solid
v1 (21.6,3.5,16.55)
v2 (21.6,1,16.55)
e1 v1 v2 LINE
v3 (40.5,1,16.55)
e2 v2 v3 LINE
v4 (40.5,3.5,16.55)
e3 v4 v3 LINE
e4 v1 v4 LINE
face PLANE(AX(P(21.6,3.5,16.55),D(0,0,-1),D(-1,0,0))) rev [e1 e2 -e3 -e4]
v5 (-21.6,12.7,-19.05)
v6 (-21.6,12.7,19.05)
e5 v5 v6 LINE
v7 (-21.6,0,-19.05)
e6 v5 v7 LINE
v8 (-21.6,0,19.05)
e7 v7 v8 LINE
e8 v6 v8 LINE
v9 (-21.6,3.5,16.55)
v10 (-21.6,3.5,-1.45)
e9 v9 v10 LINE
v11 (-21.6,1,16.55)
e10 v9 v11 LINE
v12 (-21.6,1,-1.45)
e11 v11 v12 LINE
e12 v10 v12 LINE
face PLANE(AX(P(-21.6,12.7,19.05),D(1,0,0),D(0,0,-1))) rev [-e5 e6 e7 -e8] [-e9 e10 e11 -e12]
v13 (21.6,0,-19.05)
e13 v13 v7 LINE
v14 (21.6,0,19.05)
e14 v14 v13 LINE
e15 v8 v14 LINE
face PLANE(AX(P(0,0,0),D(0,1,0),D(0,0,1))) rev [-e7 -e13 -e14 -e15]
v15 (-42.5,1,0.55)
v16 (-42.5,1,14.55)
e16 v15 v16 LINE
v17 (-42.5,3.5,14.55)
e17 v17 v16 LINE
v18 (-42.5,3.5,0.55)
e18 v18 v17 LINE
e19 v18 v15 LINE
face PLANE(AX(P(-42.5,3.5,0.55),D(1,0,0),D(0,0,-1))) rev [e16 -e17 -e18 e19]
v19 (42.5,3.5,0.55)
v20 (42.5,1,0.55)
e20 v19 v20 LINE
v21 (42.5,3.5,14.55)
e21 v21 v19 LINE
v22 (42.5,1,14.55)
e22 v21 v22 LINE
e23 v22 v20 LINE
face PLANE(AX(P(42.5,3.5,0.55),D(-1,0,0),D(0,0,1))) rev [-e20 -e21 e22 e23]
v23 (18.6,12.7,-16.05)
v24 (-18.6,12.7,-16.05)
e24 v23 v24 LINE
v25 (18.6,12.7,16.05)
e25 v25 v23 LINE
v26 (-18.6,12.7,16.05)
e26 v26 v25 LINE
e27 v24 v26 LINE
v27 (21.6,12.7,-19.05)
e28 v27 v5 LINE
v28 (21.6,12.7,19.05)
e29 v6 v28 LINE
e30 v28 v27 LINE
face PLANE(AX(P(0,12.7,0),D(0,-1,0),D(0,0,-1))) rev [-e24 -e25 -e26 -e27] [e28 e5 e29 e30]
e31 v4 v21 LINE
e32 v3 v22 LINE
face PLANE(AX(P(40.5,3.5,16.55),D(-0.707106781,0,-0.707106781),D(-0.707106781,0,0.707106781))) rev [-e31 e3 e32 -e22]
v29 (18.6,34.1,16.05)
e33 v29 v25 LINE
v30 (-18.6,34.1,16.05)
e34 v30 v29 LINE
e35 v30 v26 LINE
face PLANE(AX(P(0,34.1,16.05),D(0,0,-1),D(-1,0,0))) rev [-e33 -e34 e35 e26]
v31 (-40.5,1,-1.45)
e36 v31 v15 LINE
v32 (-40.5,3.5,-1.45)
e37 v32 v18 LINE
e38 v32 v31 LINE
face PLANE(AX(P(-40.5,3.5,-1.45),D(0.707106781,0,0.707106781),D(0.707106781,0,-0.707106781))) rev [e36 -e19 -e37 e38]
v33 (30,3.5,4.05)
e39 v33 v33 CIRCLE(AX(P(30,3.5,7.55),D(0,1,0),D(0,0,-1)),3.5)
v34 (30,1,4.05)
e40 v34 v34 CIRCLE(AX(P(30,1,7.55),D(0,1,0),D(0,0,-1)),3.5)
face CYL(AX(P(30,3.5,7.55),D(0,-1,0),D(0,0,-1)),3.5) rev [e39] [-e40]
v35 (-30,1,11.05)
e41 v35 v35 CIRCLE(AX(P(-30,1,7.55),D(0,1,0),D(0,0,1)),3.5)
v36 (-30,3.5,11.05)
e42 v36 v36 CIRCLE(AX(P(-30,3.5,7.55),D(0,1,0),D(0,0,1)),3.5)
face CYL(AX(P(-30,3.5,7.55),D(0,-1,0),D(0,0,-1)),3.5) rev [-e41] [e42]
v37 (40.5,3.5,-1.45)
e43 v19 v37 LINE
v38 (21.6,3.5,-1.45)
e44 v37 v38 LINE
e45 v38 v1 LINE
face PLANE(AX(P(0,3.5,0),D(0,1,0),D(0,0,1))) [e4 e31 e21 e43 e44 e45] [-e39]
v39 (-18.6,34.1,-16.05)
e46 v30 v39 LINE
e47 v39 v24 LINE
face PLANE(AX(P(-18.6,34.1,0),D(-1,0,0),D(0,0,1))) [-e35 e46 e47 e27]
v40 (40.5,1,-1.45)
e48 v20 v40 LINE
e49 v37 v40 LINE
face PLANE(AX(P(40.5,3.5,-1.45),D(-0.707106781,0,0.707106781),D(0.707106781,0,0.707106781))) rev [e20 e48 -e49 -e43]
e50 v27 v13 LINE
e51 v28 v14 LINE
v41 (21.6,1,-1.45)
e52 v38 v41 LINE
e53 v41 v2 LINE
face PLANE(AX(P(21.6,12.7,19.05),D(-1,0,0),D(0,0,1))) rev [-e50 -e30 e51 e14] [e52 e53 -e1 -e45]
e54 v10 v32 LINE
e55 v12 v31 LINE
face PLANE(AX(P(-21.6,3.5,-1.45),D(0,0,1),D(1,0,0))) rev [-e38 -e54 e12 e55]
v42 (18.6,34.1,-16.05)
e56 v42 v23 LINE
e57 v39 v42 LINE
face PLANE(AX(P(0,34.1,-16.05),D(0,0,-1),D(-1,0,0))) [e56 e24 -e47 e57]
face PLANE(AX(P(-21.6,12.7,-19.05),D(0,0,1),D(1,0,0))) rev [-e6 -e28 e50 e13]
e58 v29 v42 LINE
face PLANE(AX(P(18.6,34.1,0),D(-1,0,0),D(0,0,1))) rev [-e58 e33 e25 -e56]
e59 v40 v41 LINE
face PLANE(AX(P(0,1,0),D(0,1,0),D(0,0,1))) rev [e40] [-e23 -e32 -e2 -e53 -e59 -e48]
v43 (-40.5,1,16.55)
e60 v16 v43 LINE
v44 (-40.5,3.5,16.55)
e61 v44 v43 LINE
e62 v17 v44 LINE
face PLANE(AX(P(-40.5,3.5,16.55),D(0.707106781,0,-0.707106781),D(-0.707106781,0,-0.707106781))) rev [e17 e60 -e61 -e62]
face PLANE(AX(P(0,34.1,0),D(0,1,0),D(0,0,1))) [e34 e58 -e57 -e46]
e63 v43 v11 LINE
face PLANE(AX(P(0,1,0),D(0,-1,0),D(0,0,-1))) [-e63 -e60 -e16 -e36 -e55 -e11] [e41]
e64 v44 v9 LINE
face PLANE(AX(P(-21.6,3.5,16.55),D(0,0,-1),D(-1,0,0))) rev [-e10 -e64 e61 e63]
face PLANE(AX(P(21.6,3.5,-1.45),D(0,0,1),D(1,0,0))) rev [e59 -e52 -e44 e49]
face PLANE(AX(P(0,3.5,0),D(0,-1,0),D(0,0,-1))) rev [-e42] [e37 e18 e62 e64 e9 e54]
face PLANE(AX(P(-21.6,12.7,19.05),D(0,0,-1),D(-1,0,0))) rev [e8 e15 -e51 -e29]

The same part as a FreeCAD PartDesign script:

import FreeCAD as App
import Part
import Sketcher
from FreeCAD import Vector

doc = App.newDocument("Part")
body = doc.addObject("PartDesign::Body", "Body")

sketch1 = body.newObject("Sketcher::SketchObject", "Sketch")
sketch1.AttachmentSupport = (doc.getObject("XZ_Plane"), [""])
sketch1.MapMode = "FlatFace"
sketch1.addGeometry([
    Part.LineSegment(Vector(-19, -16, 0), Vector(-19, 16, 0)),
    Part.LineSegment(Vector(-19, 16, 0), Vector(19, 16, 0)),
    Part.LineSegment(Vector(19, 16, 0), Vector(19, -16, 0)),
    Part.LineSegment(Vector(19, -16, 0), Vector(-19, -16, 0)),
], False)
sketch1.addConstraint([
    Sketcher.Constraint("Coincident", 0, 2, 1, 1),
    Sketcher.Constraint("Coincident", 1, 2, 2, 1),
    Sketcher.Constraint("Coincident", 2, 2, 3, 1),
    Sketcher.Constraint("Coincident", 3, 2, 0, 1),
    Sketcher.Constraint("Vertical", 0),
    Sketcher.Constraint("Horizontal", 1),
    Sketcher.Constraint("Vertical", 2),
    Sketcher.Constraint("Horizontal", 3),
    Sketcher.Constraint("Symmetric", 0, 2, 2, 2, -1, 1),
    Sketcher.Constraint("DistanceX", 1, 1, 1, 2, 37.2),
    Sketcher.Constraint("DistanceY", 0, 1, 0, 2, 32.1),
])
pad1 = body.newObject("PartDesign::Pad", "Pad")
pad1.Profile = sketch1
pad1.Length = 34.1
pad1.Reversed = True

sketch2 = body.newObject("Sketcher::SketchObject", "Sketch001")
sketch2.AttachmentSupport = (doc.getObject("XZ_Plane"), [""])
sketch2.MapMode = "FlatFace"
sketch2.addGeometry([
    Part.LineSegment(Vector(-22, -19, 0), Vector(-22, 19, 0)),
    Part.LineSegment(Vector(-22, 19, 0), Vector(22, 19, 0)),
    Part.LineSegment(Vector(22, 19, 0), Vector(22, -19, 0)),
    Part.LineSegment(Vector(22, -19, 0), Vector(-22, -19, 0)),
    Part.LineSegment(Vector(19, 16, 0), Vector(-19, 16, 0)),
    Part.LineSegment(Vector(-19, 16, 0), Vector(-19, -16, 0)),
    Part.LineSegment(Vector(-19, -16, 0), Vector(19, -16, 0)),
    Part.LineSegment(Vector(19, -16, 0), Vector(19, 16, 0)),
], False)
sketch2.addConstraint([
    Sketcher.Constraint("Coincident", 0, 2, 1, 1),
    Sketcher.Constraint("Coincident", 1, 2, 2, 1),
    Sketcher.Constraint("Coincident", 2, 2, 3, 1),
    Sketcher.Constraint("Coincident", 3, 2, 0, 1),
    Sketcher.Constraint("Coincident", 4, 2, 5, 1),
    Sketcher.Constraint("Coincident", 5, 2, 6, 1),
    Sketcher.Constraint("Coincident", 6, 2, 7, 1),
    Sketcher.Constraint("Coincident", 7, 2, 4, 1),
    Sketcher.Constraint("Vertical", 0),
    Sketcher.Constraint("Horizontal", 1),
    Sketcher.Constraint("Vertical", 2),
    Sketcher.Constraint("Horizontal", 3),
    Sketcher.Constraint("Horizontal", 4),
    Sketcher.Constraint("Vertical", 5),
    Sketcher.Constraint("Horizontal", 6),
    Sketcher.Constraint("Vertical", 7),
    Sketcher.Constraint("Symmetric", 0, 2, 2, 2, -1, 1),
    Sketcher.Constraint("Symmetric", 4, 2, 6, 2, -1, 1),
    Sketcher.Constraint("DistanceX", 1, 1, 1, 2, 43.2),
    Sketcher.Constraint("DistanceX", 4, 2, 4, 1, 37.2),
    Sketcher.Constraint("DistanceY", 0, 1, 0, 2, 38.1),
    Sketcher.Constraint("DistanceY", 5, 2, 5, 1, 32.1),
])
pad2 = body.newObject("PartDesign::Pad", "Pad001")
pad2.Profile = sketch2
pad2.Length = 12.7
pad2.Reversed = True

sketch3 = body.newObject("Sketcher::SketchObject", "Sketch002")
sketch3.AttachmentSupport = (doc.getObject("XZ_Plane"), [""])
sketch3.MapMode = "FlatFace"
sketch3.AttachmentOffset = App.Placement(Vector(0, 0, -1), App.Rotation())
sketch3.addGeometry([
    Part.LineSegment(Vector(-21.6, -1.4, 0), Vector(-40.5, -1.4, 0)),
    Part.LineSegment(Vector(-40.5, -1.4, 0), Vector(-42.5, 0.6, 0)),
    Part.LineSegment(Vector(-42.5, 0.6, 0), Vector(-42.5, 14.6, 0)),
    Part.LineSegment(Vector(-42.5, 14.6, 0), Vector(-40.5, 16.6, 0)),
    Part.LineSegment(Vector(-40.5, 16.6, 0), Vector(-21.6, 16.6, 0)),
    Part.LineSegment(Vector(-21.6, 16.6, 0), Vector(-21.6, -1.4, 0)),
    Part.Circle(Vector(-30, 7.5, 0), Vector(0, 0, 1), 3.5),
    Part.LineSegment(Vector(21.6, 16.6, 0), Vector(40.5, 16.6, 0)),
    Part.LineSegment(Vector(40.5, 16.6, 0), Vector(42.5, 14.6, 0)),
    Part.LineSegment(Vector(42.5, 14.6, 0), Vector(42.5, 0.6, 0)),
    Part.LineSegment(Vector(42.5, 0.6, 0), Vector(40.5, -1.4, 0)),
    Part.LineSegment(Vector(40.5, -1.4, 0), Vector(21.6, -1.4, 0)),
    Part.LineSegment(Vector(21.6, -1.4, 0), Vector(21.6, 16.6, 0)),
    Part.Circle(Vector(30, 7.5, 0), Vector(0, 0, 1), 3.5),
], False)
sketch3.addConstraint([
    Sketcher.Constraint("Coincident", 0, 2, 1, 1),
    Sketcher.Constraint("Coincident", 1, 2, 2, 1),
    Sketcher.Constraint("Coincident", 2, 2, 3, 1),
    Sketcher.Constraint("Coincident", 3, 2, 4, 1),
    Sketcher.Constraint("Coincident", 4, 2, 5, 1),
    Sketcher.Constraint("Coincident", 5, 2, 0, 1),
    Sketcher.Constraint("Coincident", 7, 2, 8, 1),
    Sketcher.Constraint("Coincident", 8, 2, 9, 1),
    Sketcher.Constraint("Coincident", 9, 2, 10, 1),
    Sketcher.Constraint("Coincident", 10, 2, 11, 1),
    Sketcher.Constraint("Coincident", 11, 2, 12, 1),
    Sketcher.Constraint("Coincident", 12, 2, 7, 1),
    Sketcher.Constraint("Horizontal", 0),
    Sketcher.Constraint("Vertical", 2),
    Sketcher.Constraint("Horizontal", 4),
    Sketcher.Constraint("Vertical", 5),
    Sketcher.Constraint("Horizontal", 7),
    Sketcher.Constraint("Vertical", 9),
    Sketcher.Constraint("Horizontal", 11),
    Sketcher.Constraint("Vertical", 12),
    Sketcher.Constraint("Equal", 6, 13),
    Sketcher.Constraint("Symmetric", 6, 3, 13, 3, -2),
    Sketcher.Constraint("Symmetric", 3, 2, 7, 2, -2),
    Sketcher.Constraint("Symmetric", 2, 2, 8, 2, -2),
    Sketcher.Constraint("Symmetric", 0, 2, 10, 2, -2),
    Sketcher.Constraint("Perpendicular", 1, 3),
    Sketcher.Constraint("Perpendicular", 3, 8),
    Sketcher.Constraint("Perpendicular", 8, 10),
    Sketcher.Constraint("Vertical", 0, 2, 3, 2),
    Sketcher.Constraint("Equal", 4, 7),
    Sketcher.Constraint("Diameter", 6, 7.0),
    Sketcher.Constraint("DistanceY", 2, 1, 2, 2, 14.0),
    Sketcher.Constraint("DistanceY", 5, 2, 5, 1, 18.0),
    Sketcher.Constraint("DistanceX", 0, 2, 0, 1, 18.9),
    Sketcher.Constraint("DistanceX", 6, 3, -1, 1, 30.0),
    Sketcher.Constraint("DistanceY", 0, 2, 6, 3, 9.0),
    Sketcher.Constraint("DistanceX", 3, 2, 7, 2, 81.0),
    Sketcher.Constraint("DistanceY", -1, 1, 6, 3, 7.55),
])
pad3 = body.newObject("PartDesign::Pad", "Pad002")
pad3.Profile = sketch3
pad3.Length = 2.5
pad3.Reversed = True

doc.recompute()
